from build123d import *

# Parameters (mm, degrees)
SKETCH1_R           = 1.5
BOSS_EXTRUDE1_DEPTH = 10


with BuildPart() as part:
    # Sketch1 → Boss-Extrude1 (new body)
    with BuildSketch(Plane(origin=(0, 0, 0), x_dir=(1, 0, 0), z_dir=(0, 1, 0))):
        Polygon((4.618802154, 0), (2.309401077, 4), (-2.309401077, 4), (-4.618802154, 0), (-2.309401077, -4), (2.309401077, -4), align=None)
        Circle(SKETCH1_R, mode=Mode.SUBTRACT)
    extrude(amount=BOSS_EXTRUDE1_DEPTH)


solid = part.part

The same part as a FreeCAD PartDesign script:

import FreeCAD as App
import Part
import Sketcher

V = App.Vector
Q = App.Units.Quantity

doc = App.newDocument("Part")
body = doc.addObject("PartDesign::Body", "Body")

sketch1 = doc.addObject("Sketcher::SketchObject", "Sketch")
body.addObject(sketch1)
sketch1.AttachmentSupport = (doc.XZ_Plane, [""])
sketch1.MapMode = "FlatFace"
sketch1.addGeometry([
    Part.LineSegment(V(4.6, 0, 0), V(2.3, -4, 0)),
    Part.LineSegment(V(2.3, -4, 0), V(-2.3, -4, 0)),
    Part.LineSegment(V(-2.3, -4, 0), V(-4.6, 0, 0)),
    Part.LineSegment(V(-4.6, 0, 0), V(-2.3, 4, 0)),
    Part.LineSegment(V(-2.3, 4, 0), V(2.3, 4, 0)),
    Part.LineSegment(V(2.3, 4, 0), V(4.6, 0, 0)),
    Part.Circle(V(0, 0, 0), V(0, 0, 1), 1.5),
], False)
sketch1.addConstraint([
    Sketcher.Constraint("Coincident", 0, 2, 1, 1),
    Sketcher.Constraint("Coincident", 1, 2, 2, 1),
    Sketcher.Constraint("Coincident", 2, 2, 3, 1),
    Sketcher.Constraint("Coincident", 3, 2, 4, 1),
    Sketcher.Constraint("Coincident", 4, 2, 5, 1),
    Sketcher.Constraint("Coincident", 5, 2, 0, 1),
    Sketcher.Constraint("Horizontal", 1),
    Sketcher.Constraint("Horizontal", 4),
    Sketcher.Constraint("Coincident", 6, 3, -1, 1),
    Sketcher.Constraint("Symmetric", 0, 2, 3, 2, -1, 1),
    Sketcher.Constraint("Symmetric", 2, 2, 5, 2, -1, 1),
    Sketcher.Constraint("PointOnObject", 2, 2, -1),
    Sketcher.Constraint("Parallel", 2, 5),
    Sketcher.Constraint("Vertical", 1, 2, 3, 2),
    Sketcher.Constraint("Diameter", 6, Q("3 mm")),
    Sketcher.Constraint("Angle", 0, Q("-120 deg")),
    Sketcher.Constraint("DistanceY", 0, 2, -1, 1, Q("4 mm")),
    Sketcher.Constraint("DistanceX", -1, 1, 0, 2, Q("2.309401 mm")),
])
pad1 = doc.addObject("PartDesign::Pad", "Pad")
body.addObject(pad1)
pad1.Profile = sketch1
pad1.Length = 10
pad1.Reversed = True

doc.recompute()
